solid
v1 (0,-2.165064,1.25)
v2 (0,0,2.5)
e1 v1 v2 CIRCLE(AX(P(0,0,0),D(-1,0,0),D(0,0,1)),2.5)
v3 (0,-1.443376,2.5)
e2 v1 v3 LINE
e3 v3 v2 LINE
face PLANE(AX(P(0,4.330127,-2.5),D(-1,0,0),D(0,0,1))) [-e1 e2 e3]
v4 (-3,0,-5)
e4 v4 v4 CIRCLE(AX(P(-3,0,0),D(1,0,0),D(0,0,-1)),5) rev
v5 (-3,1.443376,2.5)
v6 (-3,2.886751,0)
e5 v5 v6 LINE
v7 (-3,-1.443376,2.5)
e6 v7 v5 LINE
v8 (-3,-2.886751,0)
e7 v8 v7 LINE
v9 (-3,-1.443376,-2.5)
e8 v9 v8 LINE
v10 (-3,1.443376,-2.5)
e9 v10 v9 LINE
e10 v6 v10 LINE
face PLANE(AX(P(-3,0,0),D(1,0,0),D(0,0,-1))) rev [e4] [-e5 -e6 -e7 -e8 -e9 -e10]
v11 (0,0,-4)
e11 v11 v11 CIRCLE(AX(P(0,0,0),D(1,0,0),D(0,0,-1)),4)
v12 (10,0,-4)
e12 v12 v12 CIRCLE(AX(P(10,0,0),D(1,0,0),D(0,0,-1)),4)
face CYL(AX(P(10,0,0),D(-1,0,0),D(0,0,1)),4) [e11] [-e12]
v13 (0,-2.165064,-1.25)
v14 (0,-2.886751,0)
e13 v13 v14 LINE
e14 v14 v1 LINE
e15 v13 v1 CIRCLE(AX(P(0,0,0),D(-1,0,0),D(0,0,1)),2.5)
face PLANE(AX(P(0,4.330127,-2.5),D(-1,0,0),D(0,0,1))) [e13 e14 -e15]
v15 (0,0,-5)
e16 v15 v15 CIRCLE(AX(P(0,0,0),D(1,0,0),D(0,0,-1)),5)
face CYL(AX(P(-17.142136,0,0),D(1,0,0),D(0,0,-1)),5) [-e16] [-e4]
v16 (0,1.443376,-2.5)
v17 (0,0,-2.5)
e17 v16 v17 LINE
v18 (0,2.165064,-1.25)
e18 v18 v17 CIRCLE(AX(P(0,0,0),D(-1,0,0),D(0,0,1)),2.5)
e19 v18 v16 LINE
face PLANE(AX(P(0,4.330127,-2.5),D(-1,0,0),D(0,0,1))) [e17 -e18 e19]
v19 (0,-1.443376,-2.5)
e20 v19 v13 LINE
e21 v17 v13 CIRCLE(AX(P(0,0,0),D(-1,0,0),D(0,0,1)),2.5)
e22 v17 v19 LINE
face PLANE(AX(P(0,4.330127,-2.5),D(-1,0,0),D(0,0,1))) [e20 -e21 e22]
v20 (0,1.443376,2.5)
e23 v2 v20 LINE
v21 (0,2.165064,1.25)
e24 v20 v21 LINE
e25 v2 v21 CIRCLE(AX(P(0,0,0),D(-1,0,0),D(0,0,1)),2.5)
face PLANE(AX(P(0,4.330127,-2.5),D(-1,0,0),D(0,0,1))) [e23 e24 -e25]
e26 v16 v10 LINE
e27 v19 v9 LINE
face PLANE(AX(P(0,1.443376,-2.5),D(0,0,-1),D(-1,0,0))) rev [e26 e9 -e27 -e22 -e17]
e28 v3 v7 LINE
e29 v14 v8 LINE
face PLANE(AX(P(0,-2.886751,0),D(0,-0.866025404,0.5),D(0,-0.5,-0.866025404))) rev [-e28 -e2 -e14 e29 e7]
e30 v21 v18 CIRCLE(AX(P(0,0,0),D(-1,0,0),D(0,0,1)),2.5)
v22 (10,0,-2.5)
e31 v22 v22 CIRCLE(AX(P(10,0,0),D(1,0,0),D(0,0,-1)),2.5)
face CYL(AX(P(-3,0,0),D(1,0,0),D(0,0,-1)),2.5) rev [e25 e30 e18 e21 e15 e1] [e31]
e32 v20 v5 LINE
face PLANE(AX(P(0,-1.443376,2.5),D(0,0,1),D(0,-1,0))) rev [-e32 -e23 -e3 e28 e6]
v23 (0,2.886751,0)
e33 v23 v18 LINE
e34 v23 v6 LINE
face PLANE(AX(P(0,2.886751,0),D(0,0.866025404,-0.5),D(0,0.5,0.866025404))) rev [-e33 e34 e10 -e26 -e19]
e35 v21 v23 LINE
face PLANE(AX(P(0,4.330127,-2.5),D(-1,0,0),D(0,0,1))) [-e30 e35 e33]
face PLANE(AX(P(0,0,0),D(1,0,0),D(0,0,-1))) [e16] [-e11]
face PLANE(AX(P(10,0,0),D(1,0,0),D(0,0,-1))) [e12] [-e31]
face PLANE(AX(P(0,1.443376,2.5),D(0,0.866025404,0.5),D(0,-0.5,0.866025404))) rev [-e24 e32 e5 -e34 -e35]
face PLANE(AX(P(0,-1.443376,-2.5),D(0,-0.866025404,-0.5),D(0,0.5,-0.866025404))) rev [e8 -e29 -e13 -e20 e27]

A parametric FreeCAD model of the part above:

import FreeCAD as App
import Part
import Sketcher

V = App.Vector
Q = App.Units.Quantity


def add_polygon(sketch, points):
    """Adds a closed chain of lines whose ends are joined by coincident constraints."""
    first, n = sketch.GeometryCount, len(points)
    for a, b in zip(points, points[1:] + points[:1]):
        sketch.addGeometry(Part.LineSegment(App.Vector(*a, 0), App.Vector(*b, 0)), False)
    for i in range(n):
        sketch.addConstraint(Sketcher.Constraint("Coincident", first + i, 2, first + (i + 1) % n, 1))

doc = App.newDocument("Part")
body = doc.addObject("PartDesign::Body", "Body")

# Sketch on YZ plane
sketch1 = body.newObject("Sketcher::SketchObject", "Sketch")
sketch1.AttachmentSupport = (doc.getObject("YZ_Plane"), [""])
sketch1.MapMode = "FlatFace"
sketch1.addGeometry(Part.Circle(V(0, 0, 0), V(0, 0, 1), 4), False)
sketch1.addConstraint([
    Sketcher.Constraint("Coincident", 0, 3, -1, 1),
    Sketcher.Constraint("Diameter", 0, 8.0),
])
pad1 = body.newObject("PartDesign::Pad", "Pad")
pad1.Profile = sketch1
pad1.Type = "TwoLengths"
pad1.Length = 10
pad1.Length2 = 3

# Sketch on YZ plane
sketch2 = body.newObject("Sketcher::SketchObject", "Sketch001")
sketch2.AttachmentSupport = (doc.getObject("YZ_Plane"), [""])
sketch2.MapMode = "FlatFace"
sketch2.addGeometry(Part.Circle(V(0, 0, 0), V(0, 0, 1), 5), False)
sketch2.addConstraint([
    Sketcher.Constraint("Coincident", 0, 3, -1, 1),
    Sketcher.Constraint("Diameter", 0, 10.0),
])
pad2 = body.newObject("PartDesign::Pad", "Pad001")
pad2.Profile = sketch2
pad2.Length = 3
pad2.Reversed = True

# Sketch on YZ plane
sketch3 = body.newObject("Sketcher::SketchObject", "Sketch002")
sketch3.AttachmentSupport = (doc.getObject("YZ_Plane"), [""])
sketch3.MapMode = "FlatFace"
sketch3.AttachmentOffset = App.Placement(V(0, 0, -3), App.Rotation())
add_polygon(sketch3, [(2.9, 0), (1.4, -2.5), (-1.4, -2.5), (-2.9, 0), (-1.4, 2.5), (1.4, 2.5)])  # lines 0-5
sketch3.addConstraint([
    Sketcher.Constraint("Horizontal", 1),
    Sketcher.Constraint("Horizontal", 4),
    Sketcher.Constraint("Symmetric", 0, 2, 3, 2, -1, 1),
    Sketcher.Constraint("Symmetric", 2, 2, 5, 2, -1, 1),
    Sketcher.Constraint("PointOnObject", 2, 2, -1),
    Sketcher.Constraint("Parallel", 2, 5),
    Sketcher.Constraint("Vertical", 1, 2, 3, 2),
    Sketcher.Constraint("Angle", 0, Q("-120 deg")),
    Sketcher.Constraint("DistanceY", 1, 2, 3, 2, 5.0),
    Sketcher.Constraint("DistanceX", 1, 2, 1, 1, 2.886751),
])
pocket1 = body.newObject("PartDesign::Pocket", "Pocket")
pocket1.Profile = sketch3
pocket1.Length = 3
pocket1.Reversed = True

# Sketch on YZ plane
sketch4 = body.newObject("Sketcher::SketchObject", "Sketch003")
sketch4.AttachmentSupport = (doc.getObject("YZ_Plane"), [""])
sketch4.MapMode = "FlatFace"
sketch4.AttachmentOffset = App.Placement(V(0, 0, 10), App.Rotation())
sketch4.addGeometry(Part.Circle(V(0, 0, 0), V(0, 0, 1), 2.5), False)
sketch4.addConstraint([
    Sketcher.Constraint("Coincident", 0, 3, -1, 1),
    Sketcher.Constraint("Diameter", 0, 5.0),
])
pocket2 = body.newObject("PartDesign::Pocket", "Pocket001")
pocket2.Profile = sketch4
pocket2.Type = "ThroughAll"

doc.recompute()
